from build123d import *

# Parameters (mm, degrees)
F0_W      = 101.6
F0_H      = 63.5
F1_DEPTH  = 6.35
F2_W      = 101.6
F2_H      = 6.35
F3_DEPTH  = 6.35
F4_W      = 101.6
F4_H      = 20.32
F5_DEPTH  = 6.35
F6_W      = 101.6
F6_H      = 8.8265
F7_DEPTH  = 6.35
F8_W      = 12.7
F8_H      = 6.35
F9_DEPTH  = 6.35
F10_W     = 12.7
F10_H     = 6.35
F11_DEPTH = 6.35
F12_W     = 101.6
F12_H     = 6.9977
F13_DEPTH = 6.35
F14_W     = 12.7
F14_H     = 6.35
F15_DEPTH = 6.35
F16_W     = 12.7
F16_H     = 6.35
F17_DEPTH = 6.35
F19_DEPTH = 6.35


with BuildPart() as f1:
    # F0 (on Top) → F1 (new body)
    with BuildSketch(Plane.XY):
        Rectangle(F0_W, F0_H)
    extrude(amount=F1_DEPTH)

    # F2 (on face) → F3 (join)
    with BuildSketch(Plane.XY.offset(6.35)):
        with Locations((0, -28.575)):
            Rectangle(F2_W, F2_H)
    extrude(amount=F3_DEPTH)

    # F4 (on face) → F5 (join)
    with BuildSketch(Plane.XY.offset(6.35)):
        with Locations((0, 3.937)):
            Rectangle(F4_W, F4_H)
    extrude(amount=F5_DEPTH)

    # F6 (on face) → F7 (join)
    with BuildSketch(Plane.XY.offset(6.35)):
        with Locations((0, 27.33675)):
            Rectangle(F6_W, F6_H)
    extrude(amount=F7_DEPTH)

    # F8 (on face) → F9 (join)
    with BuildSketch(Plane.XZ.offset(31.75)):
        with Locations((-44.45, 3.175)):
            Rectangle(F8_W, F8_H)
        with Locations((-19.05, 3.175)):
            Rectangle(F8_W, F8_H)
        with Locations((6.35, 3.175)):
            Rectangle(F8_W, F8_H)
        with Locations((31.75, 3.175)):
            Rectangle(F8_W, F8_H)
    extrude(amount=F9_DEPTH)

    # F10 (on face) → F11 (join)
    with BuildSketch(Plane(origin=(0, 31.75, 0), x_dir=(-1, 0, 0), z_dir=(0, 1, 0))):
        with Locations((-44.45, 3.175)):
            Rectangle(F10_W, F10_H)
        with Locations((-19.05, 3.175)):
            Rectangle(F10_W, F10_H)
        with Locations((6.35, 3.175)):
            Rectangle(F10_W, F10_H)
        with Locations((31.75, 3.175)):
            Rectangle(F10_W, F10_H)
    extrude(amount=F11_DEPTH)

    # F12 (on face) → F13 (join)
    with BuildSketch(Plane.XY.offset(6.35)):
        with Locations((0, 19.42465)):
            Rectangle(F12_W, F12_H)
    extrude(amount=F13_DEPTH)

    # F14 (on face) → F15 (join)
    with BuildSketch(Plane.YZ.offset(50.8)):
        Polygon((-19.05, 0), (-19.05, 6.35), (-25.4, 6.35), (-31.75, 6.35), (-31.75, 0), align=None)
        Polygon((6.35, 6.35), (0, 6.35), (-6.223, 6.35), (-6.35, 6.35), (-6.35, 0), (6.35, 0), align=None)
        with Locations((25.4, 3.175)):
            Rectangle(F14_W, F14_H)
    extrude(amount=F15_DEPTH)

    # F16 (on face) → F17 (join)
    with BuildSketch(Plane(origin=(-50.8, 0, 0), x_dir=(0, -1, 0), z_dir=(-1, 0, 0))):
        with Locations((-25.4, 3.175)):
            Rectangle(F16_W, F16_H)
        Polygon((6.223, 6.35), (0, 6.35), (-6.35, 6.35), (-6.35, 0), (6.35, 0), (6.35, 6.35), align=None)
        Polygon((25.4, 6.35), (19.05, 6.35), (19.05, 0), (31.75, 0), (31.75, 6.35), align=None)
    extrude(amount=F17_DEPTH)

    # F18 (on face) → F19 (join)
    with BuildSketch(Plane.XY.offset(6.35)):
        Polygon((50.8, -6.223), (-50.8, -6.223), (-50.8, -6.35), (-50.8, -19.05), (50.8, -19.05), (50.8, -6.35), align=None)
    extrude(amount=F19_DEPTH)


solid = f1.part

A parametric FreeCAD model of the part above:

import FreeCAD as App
import Part
import Sketcher
from FreeCAD import Vector
Q = App.Units.Quantity

doc = App.newDocument("Part")
body = doc.addObject("PartDesign::Body", "Body")

sketch1 = body.newObject("Sketcher::SketchObject", "Sketch")
sketch1.AttachmentSupport = (doc.getObject("XY_Plane"), [""])
sketch1.MapMode = "FlatFace"
sketch1.addGeometry([
    Part.LineSegment(Vector(-50.8, 31.75, 0), Vector(-50.8, -31.75, 0)),
    Part.LineSegment(Vector(-50.8, -31.75, 0), Vector(50.8, -31.75, 0)),
    Part.LineSegment(Vector(50.8, -31.75, 0), Vector(50.8, 31.75, 0)),
    Part.LineSegment(Vector(50.8, 31.75, 0), Vector(-50.8, 31.75, 0)),
], False)
sketch1.addConstraint([
    Sketcher.Constraint("Coincident", 0, 2, 1, 1),
    Sketcher.Constraint("Coincident", 1, 2, 2, 1),
    Sketcher.Constraint("Coincident", 2, 2, 3, 1),
    Sketcher.Constraint("Coincident", 3, 2, 0, 1),
    Sketcher.Constraint("Vertical", 0),
    Sketcher.Constraint("Horizontal", 1),
    Sketcher.Constraint("Vertical", 2),
    Sketcher.Constraint("Horizontal", 3),
    Sketcher.Constraint("Symmetric", 0, 2, 2, 2, -1, 1),
    Sketcher.Constraint("DistanceX", 1, 1, 1, 2, Q("4 in")),
    Sketcher.Constraint("DistanceY", 0, 2, 0, 1, Q("2.5 in")),
])
pad1 = body.newObject("PartDesign::Pad", "Pad")
pad1.Profile = sketch1
pad1.Length = Q("0.25 in")

sketch2 = body.newObject("Sketcher::SketchObject", "Sketch001")
sketch2.AttachmentSupport = (doc.getObject("XY_Plane"), [""])
sketch2.MapMode = "FlatFace"
sketch2.AttachmentOffset = App.Placement(Vector(0, 0, 0.25 * 25.4), App.Rotation())
sketch2.addGeometry([
    Part.LineSegment(Vector(-50.8, -25.4, 0), Vector(-50.8, -31.75, 0)),
    Part.LineSegment(Vector(-50.8, -31.75, 0), Vector(50.8, -31.75, 0)),
    Part.LineSegment(Vector(50.8, -31.75, 0), Vector(50.8, -25.4, 0)),
    Part.LineSegment(Vector(50.8, -25.4, 0), Vector(-50.8, -25.4, 0)),
], False)
sketch2.addConstraint([
    Sketcher.Constraint("Coincident", 0, 2, 1, 1),
    Sketcher.Constraint("Coincident", 1, 2, 2, 1),
    Sketcher.Constraint("Coincident", 2, 2, 3, 1),
    Sketcher.Constraint("Coincident", 3, 2, 0, 1),
    Sketcher.Constraint("Vertical", 0),
    Sketcher.Constraint("Horizontal", 1),
    Sketcher.Constraint("Vertical", 2),
    Sketcher.Constraint("Horizontal", 3),
    Sketcher.Constraint("DistanceX", 1, 1, 1, 2, Q("4 in")),
    Sketcher.Constraint("DistanceX", 0, 2, -1, 1, Q("2 in")),
    Sketcher.Constraint("DistanceY", 2, 2, -1, 1, Q("1 in")),
    Sketcher.Constraint("DistanceY", 0, 2, 0, 1, Q("0.25 in")),
])
pad2 = body.newObject("PartDesign::Pad", "Pad001")
pad2.Profile = sketch2
pad2.Length = Q("0.25 in")

sketch3 = body.newObject("Sketcher::SketchObject", "Sketch002")
sketch3.AttachmentSupport = (doc.getObject("XY_Plane"), [""])
sketch3.MapMode = "FlatFace"
sketch3.AttachmentOffset = App.Placement(Vector(0, 0, 0.25 * 25.4), App.Rotation())
sketch3.addGeometry([
    Part.LineSegment(Vector(-50.8, 14.097, 0), Vector(-50.8, -6.223, 0)),
    Part.LineSegment(Vector(-50.8, -6.223, 0), Vector(50.8, -6.223, 0)),
    Part.LineSegment(Vector(50.8, -6.223, 0), Vector(50.8, 14.097, 0)),
    Part.LineSegment(Vector(50.8, 14.097, 0), Vector(-50.8, 14.097, 0)),
], False)
sketch3.addConstraint([
    Sketcher.Constraint("Coincident", 0, 2, 1, 1),
    Sketcher.Constraint("Coincident", 1, 2, 2, 1),
    Sketcher.Constraint("Coincident", 2, 2, 3, 1),
    Sketcher.Constraint("Coincident", 3, 2, 0, 1),
    Sketcher.Constraint("Vertical", 0),
    Sketcher.Constraint("Horizontal", 1),
    Sketcher.Constraint("Vertical", 2),
    Sketcher.Constraint("Horizontal", 3),
    Sketcher.Constraint("DistanceX", 1, 1, 1, 2, Q("4 in")),
    Sketcher.Constraint("DistanceY", 0, 2, 0, 1, Q("0.8 in")),
    Sketcher.Constraint("DistanceX", 0, 2, -1, 1, Q("2 in")),
    Sketcher.Constraint("DistanceY", 0, 2, -1, 1, Q("0.245 in")),
])
pad3 = body.newObject("PartDesign::Pad", "Pad002")
pad3.Profile = sketch3
pad3.Length = Q("0.25 in")

sketch4 = body.newObject("Sketcher::SketchObject", "Sketch003")
sketch4.AttachmentSupport = (doc.getObject("XY_Plane"), [""])
sketch4.MapMode = "FlatFace"
sketch4.AttachmentOffset = App.Placement(Vector(0, 0, 0.25 * 25.4), App.Rotation())
sketch4.addGeometry([
    Part.LineSegment(Vector(-50.8, 31.75, 0), Vector(-50.8, 22.9235, 0)),
    Part.LineSegment(Vector(-50.8, 22.9235, 0), Vector(50.8, 22.9235, 0)),
    Part.LineSegment(Vector(50.8, 22.9235, 0), Vector(50.8, 31.75, 0)),
    Part.LineSegment(Vector(50.8, 31.75, 0), Vector(-50.8, 31.75, 0)),
], False)
sketch4.addConstraint([
    Sketcher.Constraint("Coincident", 0, 2, 1, 1),
    Sketcher.Constraint("Coincident", 1, 2, 2, 1),
    Sketcher.Constraint("Coincident", 2, 2, 3, 1),
    Sketcher.Constraint("Coincident", 3, 2, 0, 1),
    Sketcher.Constraint("Vertical", 0),
    Sketcher.Constraint("Horizontal", 1),
    Sketcher.Constraint("Vertical", 2),
    Sketcher.Constraint("Horizontal", 3),
    Sketcher.Constraint("DistanceX", 1, 1, 1, 2, Q("4 in")),
    Sketcher.Constraint("DistanceX", 0, 2, -1, 1, Q("2 in")),
    Sketcher.Constraint("DistanceY", -1, 1, 2, 2, Q("1.25 in")),
    Sketcher.Constraint("DistanceY", 0, 2, 0, 1, Q("0.3475 in")),
])
pad4 = body.newObject("PartDesign::Pad", "Pad003")
pad4.Profile = sketch4
pad4.Length = Q("0.25 in")

sketch5 = body.newObject("Sketcher::SketchObject", "Sketch004")
sketch5.AttachmentSupport = (doc.getObject("XZ_Plane"), [""])
sketch5.MapMode = "FlatFace"
sketch5.AttachmentOffset = App.Placement(Vector(0, 0, 1.25 * 25.4), App.Rotation())
sketch5.addGeometry([
    Part.LineSegment(Vector(-50.8, 6.35, 0), Vector(-50.8, 0, 0)),
    Part.LineSegment(Vector(-50.8, 0, 0), Vector(-38.1, 0, 0)),
    Part.LineSegment(Vector(-38.1, 0, 0), Vector(-38.1, 6.35, 0)),
    Part.LineSegment(Vector(-38.1, 6.35, 0), Vector(-50.8, 6.35, 0)),
    Part.LineSegment(Vector(-25.4, 6.35, 0), Vector(-25.4, 0, 0)),
    Part.LineSegment(Vector(-25.4, 0, 0), Vector(-12.7, 0, 0)),
    Part.LineSegment(Vector(-12.7, 0, 0), Vector(-12.7, 6.35, 0)),
    Part.LineSegment(Vector(-12.7, 6.35, 0), Vector(-25.4, 6.35, 0)),
    Part.LineSegment(Vector(0, 6.35, 0), Vector(0, 0, 0)),
    Part.LineSegment(Vector(0, 0, 0), Vector(12.7, 0, 0)),
    Part.LineSegment(Vector(12.7, 0, 0), Vector(12.7, 6.35, 0)),
    Part.LineSegment(Vector(12.7, 6.35, 0), Vector(0, 6.35, 0)),
    Part.LineSegment(Vector(25.4, 6.35, 0), Vector(25.4, 0, 0)),
    Part.LineSegment(Vector(25.4, 0, 0), Vector(38.1, 0, 0)),
    Part.LineSegment(Vector(38.1, 0, 0), Vector(38.1, 6.35, 0)),
    Part.LineSegment(Vector(38.1, 6.35, 0), Vector(25.4, 6.35, 0)),
], False)
sketch5.addConstraint([
    Sketcher.Constraint("Coincident", 0, 2, 1, 1),
    Sketcher.Constraint("Coincident", 1, 2, 2, 1),
    Sketcher.Constraint("Coincident", 2, 2, 3, 1),
    Sketcher.Constraint("Coincident", 3, 2, 0, 1),
    Sketcher.Constraint("Coincident", 4, 2, 5, 1),
    Sketcher.Constraint("Coincident", 5, 2, 6, 1),
    Sketcher.Constraint("Coincident", 6, 2, 7, 1),
    Sketcher.Constraint("Coincident", 7, 2, 4, 1),
    Sketcher.Constraint("Coincident", 8, 2, 9, 1),
    Sketcher.Constraint("Coincident", 9, 2, 10, 1),
    Sketcher.Constraint("Coincident", 10, 2, 11, 1),
    Sketcher.Constraint("Coincident", 11, 2, 8, 1),
    Sketcher.Constraint("Coincident", 12, 2, 13, 1),
    Sketcher.Constraint("Coincident", 13, 2, 14, 1),
    Sketcher.Constraint("Coincident", 14, 2, 15, 1),
    Sketcher.Constraint("Coincident", 15, 2, 12, 1),
    Sketcher.Constraint("Vertical", 0),
    Sketcher.Constraint("Horizontal", 1),
    Sketcher.Constraint("Vertical", 2),
    Sketcher.Constraint("Horizontal", 3),
    Sketcher.Constraint("Vertical", 4),
    Sketcher.Constraint("Horizontal", 5),
    Sketcher.Constraint("Vertical", 6),
    Sketcher.Constraint("Horizontal", 7),
    Sketcher.Constraint("Vertical", 8),
    Sketcher.Constraint("Horizontal", 9),
    Sketcher.Constraint("Vertical", 10),
    Sketcher.Constraint("Horizontal", 11),
    Sketcher.Constraint("Vertical", 12),
    Sketcher.Constraint("Horizontal", 13),
    Sketcher.Constraint("Vertical", 14),
    Sketcher.Constraint("Horizontal", 15),
    Sketcher.Constraint("Coincident", 8, 2, -1, 1),
    Sketcher.Constraint("Symmetric", 5, 2, 9, 2, -1, 1),
    Sketcher.Constraint("Symmetric", 4, 2, 12, 2, -1, 1),
    Sketcher.Constraint("Symmetric", 1, 2, 13, 2, -1, 1),
    Sketcher.Constraint("Horizontal", 3, 2, 6, 2),
    Sketcher.Constraint("Horizontal", 7, 2, 10, 2),
    Sketcher.Constraint("Horizontal", 11, 2, 14, 2),
    Sketcher.Constraint("Equal", 3, 5),
    Sketcher.Constraint("Equal", 7, 9),
    Sketcher.Constraint("Equal", 11, 13),
    Sketcher.Constraint("DistanceX", 1, 1, 1, 2, Q("0.5 in")),
    Sketcher.Constraint("DistanceY", 0, 2, 0, 1, Q("0.25 in")),
])
pad5 = body.newObject("PartDesign::Pad", "Pad004")
pad5.Profile = sketch5
pad5.Length = Q("0.25 in")

sketch6 = body.newObject("Sketcher::SketchObject", "Sketch005")
sketch6.AttachmentSupport = (doc.getObject("XZ_Plane"), [""])
sketch6.MapMode = "FlatFace"
sketch6.AttachmentOffset = App.Placement(Vector(0, 0, -1.25 * 25.4), App.Rotation())
sketch6.addGeometry([
    Part.LineSegment(Vector(50.8, 6.35, 0), Vector(50.8, 0, 0)),
    Part.LineSegment(Vector(50.8, 0, 0), Vector(38.1, 0, 0)),
    Part.LineSegment(Vector(38.1, 0, 0), Vector(38.1, 6.35, 0)),
    Part.LineSegment(Vector(38.1, 6.35, 0), Vector(50.8, 6.35, 0)),
    Part.LineSegment(Vector(25.4, 6.35, 0), Vector(25.4, 0, 0)),
    Part.LineSegment(Vector(25.4, 0, 0), Vector(12.7, 0, 0)),
    Part.LineSegment(Vector(12.7, 0, 0), Vector(12.7, 6.35, 0)),
    Part.LineSegment(Vector(12.7, 6.35, 0), Vector(25.4, 6.35, 0)),
    Part.LineSegment(Vector(0, 6.35, 0), Vector(0, 0, 0)),
    Part.LineSegment(Vector(0, 0, 0), Vector(-12.7, 0, 0)),
    Part.LineSegment(Vector(-12.7, 0, 0), Vector(-12.7, 6.35, 0)),
    Part.LineSegment(Vector(-12.7, 6.35, 0), Vector(0, 6.35, 0)),
    Part.LineSegment(Vector(-25.4, 6.35, 0), Vector(-25.4, 0, 0)),
    Part.LineSegment(Vector(-25.4, 0, 0), Vector(-38.1, 0, 0)),
    Part.LineSegment(Vector(-38.1, 0, 0), Vector(-38.1, 6.35, 0)),
    Part.LineSegment(Vector(-38.1, 6.35, 0), Vector(-25.4, 6.35, 0)),
], False)
sketch6.addConstraint([
    Sketcher.Constraint("Coincident", 0, 2, 1, 1),
    Sketcher.Constraint("Coincident", 1, 2, 2, 1),
    Sketcher.Constraint("Coincident", 2, 2, 3, 1),
    Sketcher.Constraint("Coincident", 3, 2, 0, 1),
    Sketcher.Constraint("Coincident", 4, 2, 5, 1),
    Sketcher.Constraint("Coincident", 5, 2, 6, 1),
    Sketcher.Constraint("Coincident", 6, 2, 7, 1),
    Sketcher.Constraint("Coincident", 7, 2, 4, 1),
    Sketcher.Constraint("Coincident", 8, 2, 9, 1),
    Sketcher.Constraint("Coincident", 9, 2, 10, 1),
    Sketcher.Constraint("Coincident", 10, 2, 11, 1),
    Sketcher.Constraint("Coincident", 11, 2, 8, 1),
    Sketcher.Constraint("Coincident", 12, 2, 13, 1),
    Sketcher.Constraint("Coincident", 13, 2, 14, 1),
    Sketcher.Constraint("Coincident", 14, 2, 15, 1),
    Sketcher.Constraint("Coincident", 15, 2, 12, 1),
    Sketcher.Constraint("Vertical", 0),
    Sketcher.Constraint("Horizontal", 1),
    Sketcher.Constraint("Vertical", 2),
    Sketcher.Constraint("Horizontal", 3),
    Sketcher.Constraint("Vertical", 4),
    Sketcher.Constraint("Horizontal", 5),
    Sketcher.Constraint("Vertical", 6),
    Sketcher.Constraint("Horizontal", 7),
    Sketcher.Constraint("Vertical", 8),
    Sketcher.Constraint("Horizontal", 9),
    Sketcher.Constraint("Vertical", 10),
    Sketcher.Constraint("Horizontal", 11),
    Sketcher.Constraint("Vertical", 12),
    Sketcher.Constraint("Horizontal", 13),
    Sketcher.Constraint("Vertical", 14),
    Sketcher.Constraint("Horizontal", 15),
    Sketcher.Constraint("Coincident", 8, 2, -1, 1),
    Sketcher.Constraint("Symmetric", 5, 2, 9, 2, -1, 1),
    Sketcher.Constraint("Symmetric", 4, 2, 12, 2, -1, 1),
    Sketcher.Constraint("Symmetric", 1, 2, 13, 2, -1, 1),
    Sketcher.Constraint("Horizontal", 3, 2, 6, 2),
    Sketcher.Constraint("Horizontal", 7, 2, 10, 2),
    Sketcher.Constraint("Horizontal", 11, 2, 14, 2),
    Sketcher.Constraint("Equal", 3, 5),
    Sketcher.Constraint("Equal", 7, 9),
    Sketcher.Constraint("Equal", 11, 13),
    Sketcher.Constraint("DistanceX", 1, 2, 1, 1, Q("0.5 in")),
    Sketcher.Constraint("DistanceY", 0, 2, 0, 1, Q("0.25 in")),
])
pad6 = body.newObject("PartDesign::Pad", "Pad005")
pad6.Profile = sketch6
pad6.Length = Q("0.25 in")
pad6.Reversed = True

sketch7 = body.newObject("Sketcher::SketchObject", "Sketch006")
sketch7.AttachmentSupport = (doc.getObject("XY_Plane"), [""])
sketch7.MapMode = "FlatFace"
sketch7.AttachmentOffset = App.Placement(Vector(0, 0, 0.25 * 25.4), App.Rotation())
sketch7.addGeometry([
    Part.LineSegment(Vector(-50.8, 22.9235, 0), Vector(-50.8, 15.9258, 0)),
    Part.LineSegment(Vector(-50.8, 15.9258, 0), Vector(50.8, 15.9258, 0)),
    Part.LineSegment(Vector(50.8, 15.9258, 0), Vector(50.8, 22.9235, 0)),
    Part.LineSegment(Vector(50.8, 22.9235, 0), Vector(-50.8, 22.9235, 0)),
], False)
sketch7.addConstraint([
    Sketcher.Constraint("Coincident", 0, 2, 1, 1),
    Sketcher.Constraint("Coincident", 1, 2, 2, 1),
    Sketcher.Constraint("Coincident", 2, 2, 3, 1),
    Sketcher.Constraint("Coincident", 3, 2, 0, 1),
    Sketcher.Constraint("Vertical", 0),
    Sketcher.Constraint("Horizontal", 1),
    Sketcher.Constraint("Vertical", 2),
    Sketcher.Constraint("Horizontal", 3),
    Sketcher.Constraint("DistanceX", 1, 1, 1, 2, Q("4 in")),
    Sketcher.Constraint("DistanceX", 0, 2, -1, 1, Q("2 in")),
    Sketcher.Constraint("DistanceY", 0, 2, 0, 1, Q("0.2755 in")),
    Sketcher.Constraint("DistanceY", -1, 1, 0, 2, Q("0.627 in")),
])
pad7 = body.newObject("PartDesign::Pad", "Pad006")
pad7.Profile = sketch7
pad7.Length = Q("0.25 in")

sketch8 = body.newObject("Sketcher::SketchObject", "Sketch007")
sketch8.AttachmentSupport = (doc.getObject("YZ_Plane"), [""])
sketch8.MapMode = "FlatFace"
sketch8.AttachmentOffset = App.Placement(Vector(0, 0, 2 * 25.4), App.Rotation())
sketch8.addGeometry([
    Part.LineSegment(Vector(-19.05, 0, 0), Vector(-19.05, 6.35, 0)),
    Part.LineSegment(Vector(-19.05, 6.35, 0), Vector(-31.75, 6.35, 0)),
    Part.LineSegment(Vector(-31.75, 6.35, 0), Vector(-31.75, 0, 0)),
    Part.LineSegment(Vector(-31.75, 0, 0), Vector(-19.05, 0, 0)),
    Part.LineSegment(Vector(6.35, 6.35, 0), Vector(-6.35, 6.35, 0)),
    Part.LineSegment(Vector(-6.35, 6.35, 0), Vector(-6.35, 0, 0)),
    Part.LineSegment(Vector(-6.35, 0, 0), Vector(6.35, 0, 0)),
    Part.LineSegment(Vector(6.35, 0, 0), Vector(6.35, 6.35, 0)),
    Part.LineSegment(Vector(19.05, 6.35, 0), Vector(19.05, 0, 0)),
    Part.LineSegment(Vector(19.05, 0, 0), Vector(31.75, 0, 0)),
    Part.LineSegment(Vector(31.75, 0, 0), Vector(31.75, 6.35, 0)),
    Part.LineSegment(Vector(31.75, 6.35, 0), Vector(19.05, 6.35, 0)),
], False)
sketch8.addConstraint([
    Sketcher.Constraint("Coincident", 0, 2, 1, 1),
    Sketcher.Constraint("Coincident", 1, 2, 2, 1),
    Sketcher.Constraint("Coincident", 2, 2, 3, 1),
    Sketcher.Constraint("Coincident", 3, 2, 0, 1),
    Sketcher.Constraint("Coincident", 4, 2, 5, 1),
    Sketcher.Constraint("Coincident", 5, 2, 6, 1),
    Sketcher.Constraint("Coincident", 6, 2, 7, 1),
    Sketcher.Constraint("Coincident", 7, 2, 4, 1),
    Sketcher.Constraint("Coincident", 8, 2, 9, 1),
    Sketcher.Constraint("Coincident", 9, 2, 10, 1),
    Sketcher.Constraint("Coincident", 10, 2, 11, 1),
    Sketcher.Constraint("Coincident", 11, 2, 8, 1),
    Sketcher.Constraint("Vertical", 0),
    Sketcher.Constraint("Horizontal", 1),
    Sketcher.Constraint("Vertical", 2),
    Sketcher.Constraint("Horizontal", 3),
    Sketcher.Constraint("Horizontal", 4),
    Sketcher.Constraint("Vertical", 5),
    Sketcher.Constraint("Horizontal", 6),
    Sketcher.Constraint("Vertical", 7),
    Sketcher.Constraint("Vertical", 8),
    Sketcher.Constraint("Horizontal", 9),
    Sketcher.Constraint("Vertical", 10),
    Sketcher.Constraint("Horizontal", 11),
    Sketcher.Constraint("Symmetric", 5, 2, 6, 2, -1, 1),
    Sketcher.Constraint("Symmetric", 3, 2, 8, 2, -1, 1),
    Sketcher.Constraint("Symmetric", 2, 2, 9, 2, -2),
    Sketcher.Constraint("Horizontal", 1, 2, 4, 2),
    Sketcher.Constraint("Horizontal", 7, 2, 10, 2),
    Sketcher.Constraint("Equal", 3, 4),
    Sketcher.Constraint("DistanceX", 1, 2, 1, 1, Q("0.5 in")),
    Sketcher.Constraint("DistanceX", 1, 2, 4, 2, Q("1 in")),
    Sketcher.Constraint("DistanceY", 0, 1, 0, 2, Q("0.25 in")),
])
pad8 = body.newObject("PartDesign::Pad", "Pad007")
pad8.Profile = sketch8
pad8.Length = Q("0.25 in")

sketch9 = body.newObject("Sketcher::SketchObject", "Sketch008")
sketch9.AttachmentSupport = (doc.getObject("YZ_Plane"), [""])
sketch9.MapMode = "FlatFace"
sketch9.AttachmentOffset = App.Placement(Vector(0, 0, -2 * 25.4), App.Rotation())
sketch9.addGeometry([
    Part.LineSegment(Vector(31.75, 6.35, 0), Vector(31.75, 0, 0)),
    Part.LineSegment(Vector(31.75, 0, 0), Vector(19.05, 0, 0)),
    Part.LineSegment(Vector(19.05, 0, 0), Vector(19.05, 6.35, 0)),
    Part.LineSegment(Vector(19.05, 6.35, 0), Vector(31.75, 6.35, 0)),
    Part.LineSegment(Vector(6.35, 6.35, 0), Vector(6.35, 0, 0)),
    Part.LineSegment(Vector(6.35, 0, 0), Vector(-6.35, 0, 0)),
    Part.LineSegment(Vector(-6.35, 0, 0), Vector(-6.35, 6.35, 0)),
    Part.LineSegment(Vector(-6.35, 6.35, 0), Vector(6.35, 6.35, 0)),
    Part.LineSegment(Vector(-19.05, 6.35, 0), Vector(-19.05, 0, 0)),
    Part.LineSegment(Vector(-19.05, 0, 0), Vector(-31.75, 0, 0)),
    Part.LineSegment(Vector(-31.75, 0, 0), Vector(-31.75, 6.35, 0)),
    Part.LineSegment(Vector(-31.75, 6.35, 0), Vector(-19.05, 6.35, 0)),
], False)
sketch9.addConstraint([
    Sketcher.Constraint("Coincident", 0, 2, 1, 1),
    Sketcher.Constraint("Coincident", 1, 2, 2, 1),
    Sketcher.Constraint("Coincident", 2, 2, 3, 1),
    Sketcher.Constraint("Coincident", 3, 2, 0, 1),
    Sketcher.Constraint("Coincident", 4, 2, 5, 1),
    Sketcher.Constraint("Coincident", 5, 2, 6, 1),
    Sketcher.Constraint("Coincident", 6, 2, 7, 1),
    Sketcher.Constraint("Coincident", 7, 2, 4, 1),
    Sketcher.Constraint("Coincident", 8, 2, 9, 1),
    Sketcher.Constraint("Coincident", 9, 2, 10, 1),
    Sketcher.Constraint("Coincident", 10, 2, 11, 1),
    Sketcher.Constraint("Coincident", 11, 2, 8, 1),
    Sketcher.Constraint("Vertical", 0),
    Sketcher.Constraint("Horizontal", 1),
    Sketcher.Constraint("Vertical", 2),
    Sketcher.Constraint("Horizontal", 3),
    Sketcher.Constraint("Vertical", 4),
    Sketcher.Constraint("Horizontal", 5),
    Sketcher.Constraint("Vertical", 6),
    Sketcher.Constraint("Horizontal", 7),
    Sketcher.Constraint("Vertical", 8),
    Sketcher.Constraint("Horizontal", 9),
    Sketcher.Constraint("Vertical", 10),
    Sketcher.Constraint("Horizontal", 11),
    Sketcher.Constraint("Symmetric", 4, 2, 5, 2, -1, 1),
    Sketcher.Constraint("Symmetric", 1, 2, 8, 2, -1, 1),
    Sketcher.Constraint("Symmetric", 0, 2, 9, 2, -2),
    Sketcher.Constraint("Horizontal", 3, 2, 6, 2),
    Sketcher.Constraint("Horizontal", 7, 2, 10, 2),
    Sketcher.Constraint("Equal", 3, 5),
    Sketcher.Constraint("DistanceX", 1, 2, 1, 1, Q("0.5 in")),
    Sketcher.Constraint("DistanceX", 4, 2, 0, 2, Q("1 in")),
    Sketcher.Constraint("DistanceY", 0, 2, 0, 1, Q("0.25 in")),
])
pad9 = body.newObject("PartDesign::Pad", "Pad008")
pad9.Profile = sketch9
pad9.Length = Q("0.25 in")
pad9.Reversed = True

sketch10 = body.newObject("Sketcher::SketchObject", "Sketch009")
sketch10.AttachmentSupport = (doc.getObject("XY_Plane"), [""])
sketch10.MapMode = "FlatFace"
sketch10.AttachmentOffset = App.Placement(Vector(0, 0, 0.25 * 25.4), App.Rotation())
sketch10.addGeometry([
    Part.LineSegment(Vector(50.8, -6.223, 0), Vector(-50.8, -6.223, 0)),
    Part.LineSegment(Vector(-50.8, -6.223, 0), Vector(-50.8, -19.05, 0)),
    Part.LineSegment(Vector(-50.8, -19.05, 0), Vector(50.8, -19.05, 0)),
    Part.LineSegment(Vector(50.8, -19.05, 0), Vector(50.8, -6.223, 0)),
], False)
sketch10.addConstraint([
    Sketcher.Constraint("Coincident", 0, 2, 1, 1),
    Sketcher.Constraint("Coincident", 1, 2, 2, 1),
    Sketcher.Constraint("Coincident", 2, 2, 3, 1),
    Sketcher.Constraint("Coincident", 3, 2, 0, 1),
    Sketcher.Constraint("Horizontal", 0),
    Sketcher.Constraint("Vertical", 1),
    Sketcher.Constraint("Horizontal", 2),
    Sketcher.Constraint("Vertical", 3),
    Sketcher.Constraint("DistanceX", 0, 2, 0, 1, Q("4 in")),
    Sketcher.Constraint("DistanceX", 0, 2, -1, 1, Q("2 in")),
    Sketcher.Constraint("DistanceY", 1, 2, 1, 1, Q("0.505 in")),
    Sketcher.Constraint("DistanceY", 1, 2, -1, 1, Q("0.75 in")),
])
pad10 = body.newObject("PartDesign::Pad", "Pad009")
pad10.Profile = sketch10
pad10.Length = Q("0.25 in")

doc.recompute()
